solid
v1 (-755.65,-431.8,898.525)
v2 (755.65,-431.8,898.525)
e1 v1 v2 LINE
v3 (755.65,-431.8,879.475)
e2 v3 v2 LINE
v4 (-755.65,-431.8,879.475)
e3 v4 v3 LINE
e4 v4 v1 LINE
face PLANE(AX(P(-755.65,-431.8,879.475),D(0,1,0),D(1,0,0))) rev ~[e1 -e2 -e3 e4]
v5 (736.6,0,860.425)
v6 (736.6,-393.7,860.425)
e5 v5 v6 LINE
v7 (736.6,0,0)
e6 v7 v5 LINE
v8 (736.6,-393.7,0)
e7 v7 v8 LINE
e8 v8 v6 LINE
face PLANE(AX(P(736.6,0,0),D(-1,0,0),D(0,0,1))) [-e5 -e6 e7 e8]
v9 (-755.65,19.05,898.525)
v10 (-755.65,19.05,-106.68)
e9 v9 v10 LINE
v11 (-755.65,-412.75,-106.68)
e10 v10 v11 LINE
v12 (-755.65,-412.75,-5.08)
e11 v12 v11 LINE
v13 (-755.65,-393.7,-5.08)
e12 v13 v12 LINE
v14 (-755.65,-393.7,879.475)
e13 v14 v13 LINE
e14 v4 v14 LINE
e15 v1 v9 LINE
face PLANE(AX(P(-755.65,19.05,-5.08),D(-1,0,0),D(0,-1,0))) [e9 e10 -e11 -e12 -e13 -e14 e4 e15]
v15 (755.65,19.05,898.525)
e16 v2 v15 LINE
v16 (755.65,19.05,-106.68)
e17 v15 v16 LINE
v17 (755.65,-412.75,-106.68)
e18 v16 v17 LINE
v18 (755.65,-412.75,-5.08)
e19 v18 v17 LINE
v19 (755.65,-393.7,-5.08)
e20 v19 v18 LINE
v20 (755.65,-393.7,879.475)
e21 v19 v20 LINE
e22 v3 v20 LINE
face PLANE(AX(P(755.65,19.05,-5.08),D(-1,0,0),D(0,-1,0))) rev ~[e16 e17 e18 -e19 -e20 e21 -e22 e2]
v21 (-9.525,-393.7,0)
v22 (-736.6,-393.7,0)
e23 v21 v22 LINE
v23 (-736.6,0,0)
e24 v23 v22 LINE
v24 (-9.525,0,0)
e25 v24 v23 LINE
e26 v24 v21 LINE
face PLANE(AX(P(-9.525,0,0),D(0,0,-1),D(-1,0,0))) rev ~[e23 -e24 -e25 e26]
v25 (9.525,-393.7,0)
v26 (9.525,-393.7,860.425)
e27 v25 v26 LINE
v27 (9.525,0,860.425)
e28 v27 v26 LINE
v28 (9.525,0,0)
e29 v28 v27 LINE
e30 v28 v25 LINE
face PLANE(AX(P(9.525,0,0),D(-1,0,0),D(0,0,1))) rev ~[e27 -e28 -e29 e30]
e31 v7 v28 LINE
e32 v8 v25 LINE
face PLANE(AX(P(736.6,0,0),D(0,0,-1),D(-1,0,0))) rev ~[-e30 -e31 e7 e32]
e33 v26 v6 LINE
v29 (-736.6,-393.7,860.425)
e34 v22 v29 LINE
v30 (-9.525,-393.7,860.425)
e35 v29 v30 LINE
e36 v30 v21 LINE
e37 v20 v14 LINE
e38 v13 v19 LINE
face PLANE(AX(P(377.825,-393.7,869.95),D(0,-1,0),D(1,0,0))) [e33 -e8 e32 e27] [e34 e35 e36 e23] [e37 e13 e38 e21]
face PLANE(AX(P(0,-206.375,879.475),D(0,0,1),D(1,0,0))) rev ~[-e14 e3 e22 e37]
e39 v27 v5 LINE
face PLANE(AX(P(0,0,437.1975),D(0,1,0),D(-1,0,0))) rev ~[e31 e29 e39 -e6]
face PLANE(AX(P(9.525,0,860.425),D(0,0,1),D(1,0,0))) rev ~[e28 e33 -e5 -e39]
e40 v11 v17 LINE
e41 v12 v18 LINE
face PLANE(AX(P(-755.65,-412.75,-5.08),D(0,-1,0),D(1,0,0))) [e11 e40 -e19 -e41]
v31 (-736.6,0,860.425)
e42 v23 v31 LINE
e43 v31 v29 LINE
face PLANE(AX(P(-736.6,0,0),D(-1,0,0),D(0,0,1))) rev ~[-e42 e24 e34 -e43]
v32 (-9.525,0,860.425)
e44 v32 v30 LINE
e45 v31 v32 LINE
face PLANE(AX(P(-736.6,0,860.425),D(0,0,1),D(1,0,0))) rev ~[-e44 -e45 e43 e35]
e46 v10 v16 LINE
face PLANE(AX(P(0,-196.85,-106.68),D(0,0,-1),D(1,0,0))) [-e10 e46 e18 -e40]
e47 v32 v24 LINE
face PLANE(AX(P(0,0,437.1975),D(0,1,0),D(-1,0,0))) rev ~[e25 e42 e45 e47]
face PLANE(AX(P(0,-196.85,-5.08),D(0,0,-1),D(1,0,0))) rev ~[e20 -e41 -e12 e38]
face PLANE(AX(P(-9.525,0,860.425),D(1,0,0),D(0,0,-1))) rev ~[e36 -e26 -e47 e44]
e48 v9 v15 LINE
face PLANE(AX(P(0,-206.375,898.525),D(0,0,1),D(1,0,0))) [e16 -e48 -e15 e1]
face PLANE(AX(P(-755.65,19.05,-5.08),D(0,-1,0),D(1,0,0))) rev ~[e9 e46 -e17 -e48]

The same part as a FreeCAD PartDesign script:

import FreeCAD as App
import Part
import Sketcher
Q = App.Units.Quantity

doc = App.newDocument("Part")
body = doc.addObject("PartDesign::Body", "Body")

# Sketch on XZ plane
sketch1 = body.newObject("Sketcher::SketchObject", "Sketch")
sketch1.AttachmentSupport = (doc.getObject("XZ_Plane"), [""])
sketch1.MapMode = "FlatFace"
sketch1.addGeometry(Part.LineSegment(App.Vector(755.65, 879.475, 0), App.Vector(-755.65, 879.475, 0)), False)
sketch1.addGeometry(Part.LineSegment(App.Vector(-755.65, 879.475, 0), App.Vector(-755.65, -5.08, 0)), False)
sketch1.addGeometry(Part.LineSegment(App.Vector(-755.65, -5.08, 0), App.Vector(755.65, -5.08, 0)), False)
sketch1.addGeometry(Part.LineSegment(App.Vector(755.65, -5.08, 0), App.Vector(755.65, 879.475, 0)), False)
sketch1.addGeometry(Part.LineSegment(App.Vector(-736.6, 860.425, 0), App.Vector(-9.525, 860.425, 0)), False)
sketch1.addGeometry(Part.LineSegment(App.Vector(-9.525, 860.425, 0), App.Vector(-9.525, 0, 0)), False)
sketch1.addGeometry(Part.LineSegment(App.Vector(-9.525, 0, 0), App.Vector(-736.6, 0, 0)), False)
sketch1.addGeometry(Part.LineSegment(App.Vector(-736.6, 0, 0), App.Vector(-736.6, 860.425, 0)), False)
sketch1.addGeometry(Part.LineSegment(App.Vector(9.525, 860.425, 0), App.Vector(736.6, 860.425, 0)), False)
sketch1.addGeometry(Part.LineSegment(App.Vector(736.6, 860.425, 0), App.Vector(736.6, 0, 0)), False)
sketch1.addGeometry(Part.LineSegment(App.Vector(736.6, 0, 0), App.Vector(9.525, 0, 0)), False)
sketch1.addGeometry(Part.LineSegment(App.Vector(9.525, 0, 0), App.Vector(9.525, 860.425, 0)), False)
sketch1.addConstraint(Sketcher.Constraint("Coincident", 0, 2, 1, 1))
sketch1.addConstraint(Sketcher.Constraint("Coincident", 1, 2, 2, 1))
sketch1.addConstraint(Sketcher.Constraint("Coincident", 2, 2, 3, 1))
sketch1.addConstraint(Sketcher.Constraint("Coincident", 3, 2, 0, 1))
sketch1.addConstraint(Sketcher.Constraint("Coincident", 4, 2, 5, 1))
sketch1.addConstraint(Sketcher.Constraint("Coincident", 5, 2, 6, 1))
sketch1.addConstraint(Sketcher.Constraint("Coincident", 6, 2, 7, 1))
sketch1.addConstraint(Sketcher.Constraint("Coincident", 7, 2, 4, 1))
sketch1.addConstraint(Sketcher.Constraint("Coincident", 8, 2, 9, 1))
sketch1.addConstraint(Sketcher.Constraint("Coincident", 9, 2, 10, 1))
sketch1.addConstraint(Sketcher.Constraint("Coincident", 10, 2, 11, 1))
sketch1.addConstraint(Sketcher.Constraint("Coincident", 11, 2, 8, 1))
sketch1.addConstraint(Sketcher.Constraint("Horizontal", 0))
sketch1.addConstraint(Sketcher.Constraint("Vertical", 1))
sketch1.addConstraint(Sketcher.Constraint("Horizontal", 2))
sketch1.addConstraint(Sketcher.Constraint("Vertical", 3))
sketch1.addConstraint(Sketcher.Constraint("Horizontal", 4))
sketch1.addConstraint(Sketcher.Constraint("Vertical", 5))
sketch1.addConstraint(Sketcher.Constraint("Horizontal", 6))
sketch1.addConstraint(Sketcher.Constraint("Vertical", 7))
sketch1.addConstraint(Sketcher.Constraint("Horizontal", 8))
sketch1.addConstraint(Sketcher.Constraint("Vertical", 9))
sketch1.addConstraint(Sketcher.Constraint("Horizontal", 10))
sketch1.addConstraint(Sketcher.Constraint("Vertical", 11))
sketch1.addConstraint(Sketcher.Constraint("Symmetric", 6, 2, 9, 2, -1, 1))
sketch1.addConstraint(Sketcher.Constraint("Symmetric", 5, 2, 10, 2, -2))
sketch1.addConstraint(Sketcher.Constraint("Horizontal", 7, 2, 8, 2))
sketch1.addConstraint(Sketcher.Constraint("DistanceX", 0, 2, 0, 1, Q("59.5 in")))
sketch1.addConstraint(Sketcher.Constraint("DistanceX", 6, 2, -1, 1, Q("29 in")))
sketch1.addConstraint(Sketcher.Constraint("DistanceY", 1, 2, -1, 1, Q("0.2 in")))
sketch1.addConstraint(Sketcher.Constraint("DistanceX", 4, 1, 4, 2, Q("28.625 in")))
sketch1.addConstraint(Sketcher.Constraint("DistanceY", 1, 2, 1, 1, Q("34.825 in")))
sketch1.addConstraint(Sketcher.Constraint("DistanceY", 5, 2, 5, 1, Q("33.875 in")))
sketch1.addConstraint(Sketcher.Constraint("DistanceX", 0, 2, -1, 1, Q("29.75 in")))
pad1 = body.newObject("PartDesign::Pad", "Pad")
pad1.Profile = sketch1
pad1.Length = Q("15.5 in")

# Sketch on XZ plane
sketch2 = body.newObject("Sketcher::SketchObject", "Sketch001")
sketch2.AttachmentSupport = (doc.getObject("XZ_Plane"), [""])
sketch2.MapMode = "FlatFace"
sketch2.addGeometry(Part.LineSegment(App.Vector(755.65, 879.475, 0), App.Vector(755.65, -5.08, 0)), False)
sketch2.addGeometry(Part.LineSegment(App.Vector(755.65, -5.08, 0), App.Vector(-755.65, -5.08, 0)), False)
sketch2.addGeometry(Part.LineSegment(App.Vector(-755.65, -5.08, 0), App.Vector(-755.65, 879.475, 0)), False)
sketch2.addGeometry(Part.LineSegment(App.Vector(-755.65, 879.475, 0), App.Vector(755.65, 879.475, 0)), False)
sketch2.addConstraint(Sketcher.Constraint("Coincident", 0, 2, 1, 1))
sketch2.addConstraint(Sketcher.Constraint("Coincident", 1, 2, 2, 1))
sketch2.addConstraint(Sketcher.Constraint("Coincident", 2, 2, 3, 1))
sketch2.addConstraint(Sketcher.Constraint("Coincident", 3, 2, 0, 1))
sketch2.addConstraint(Sketcher.Constraint("Vertical", 0))
sketch2.addConstraint(Sketcher.Constraint("Horizontal", 1))
sketch2.addConstraint(Sketcher.Constraint("Vertical", 2))
sketch2.addConstraint(Sketcher.Constraint("Horizontal", 3))
sketch2.addConstraint(Sketcher.Constraint("DistanceX", 1, 2, 1, 1, Q("59.5 in")))
sketch2.addConstraint(Sketcher.Constraint("DistanceY", 0, 2, -1, 1, Q("0.2 in")))
sketch2.addConstraint(Sketcher.Constraint("DistanceY", 0, 2, 0, 1, Q("34.825 in")))
sketch2.addConstraint(Sketcher.Constraint("DistanceX", -1, 1, 0, 2, Q("29.75 in")))
pad2 = body.newObject("PartDesign::Pad", "Pad001")
pad2.Profile = sketch2
pad2.Length = Q("0.75 in")
pad2.Reversed = True

# Sketch on XY plane
sketch3 = body.newObject("Sketcher::SketchObject", "Sketch002")
sketch3.AttachmentSupport = (doc.getObject("XY_Plane"), [""])
sketch3.MapMode = "FlatFace"
sketch3.AttachmentOffset = App.Placement(App.Vector(0, 0, 34.625 * 25.4), App.Rotation())
sketch3.addGeometry(Part.LineSegment(App.Vector(-755.65, 19.05, 0), App.Vector(-755.65, -431.8, 0)), False)
sketch3.addGeometry(Part.LineSegment(App.Vector(-755.65, -431.8, 0), App.Vector(755.65, -431.8, 0)), False)
sketch3.addGeometry(Part.LineSegment(App.Vector(755.65, -431.8, 0), App.Vector(755.65, 19.05, 0)), False)
sketch3.addGeometry(Part.LineSegment(App.Vector(755.65, 19.05, 0), App.Vector(-755.65, 19.05, 0)), False)
sketch3.addConstraint(Sketcher.Constraint("Coincident", 0, 2, 1, 1))
sketch3.addConstraint(Sketcher.Constraint("Coincident", 1, 2, 2, 1))
sketch3.addConstraint(Sketcher.Constraint("Coincident", 2, 2, 3, 1))
sketch3.addConstraint(Sketcher.Constraint("Coincident", 3, 2, 0, 1))
sketch3.addConstraint(Sketcher.Constraint("Vertical", 0))
sketch3.addConstraint(Sketcher.Constraint("Horizontal", 1))
sketch3.addConstraint(Sketcher.Constraint("Vertical", 2))
sketch3.addConstraint(Sketcher.Constraint("Horizontal", 3))
sketch3.addConstraint(Sketcher.Constraint("DistanceX", 1, 1, 1, 2, Q("59.5 in")))
sketch3.addConstraint(Sketcher.Constraint("DistanceY", 0, 2, -1, 1, Q("17 in")))
sketch3.addConstraint(Sketcher.Constraint("DistanceY", 0, 2, 0, 1, Q("17.75 in")))
sketch3.addConstraint(Sketcher.Constraint("DistanceX", 0, 2, -1, 1, Q("29.75 in")))
pad3 = body.newObject("PartDesign::Pad", "Pad002")
pad3.Profile = sketch3
pad3.Length = Q("0.75 in")

# Sketch on XY plane
sketch4 = body.newObject("Sketcher::SketchObject", "Sketch003")
sketch4.AttachmentSupport = (doc.getObject("XY_Plane"), [""])
sketch4.MapMode = "FlatFace"
sketch4.AttachmentOffset = App.Placement(App.Vector(0, 0, -0.2 * 25.4), App.Rotation())
sketch4.addGeometry(Part.LineSegment(App.Vector(-755.65, -412.75, 0), App.Vector(-755.65, 19.05, 0)), False)
sketch4.addGeometry(Part.LineSegment(App.Vector(-755.65, 19.05, 0), App.Vector(755.65, 19.05, 0)), False)
sketch4.addGeometry(Part.LineSegment(App.Vector(755.65, 19.05, 0), App.Vector(755.65, -412.75, 0)), False)
sketch4.addGeometry(Part.LineSegment(App.Vector(755.65, -412.75, 0), App.Vector(-755.65, -412.75, 0)), False)
sketch4.addConstraint(Sketcher.Constraint("Coincident", 0, 2, 1, 1))
sketch4.addConstraint(Sketcher.Constraint("Coincident", 1, 2, 2, 1))
sketch4.addConstraint(Sketcher.Constraint("Coincident", 2, 2, 3, 1))
sketch4.addConstraint(Sketcher.Constraint("Coincident", 3, 2, 0, 1))
sketch4.addConstraint(Sketcher.Constraint("Vertical", 0))
sketch4.addConstraint(Sketcher.Constraint("Horizontal", 1))
sketch4.addConstraint(Sketcher.Constraint("Vertical", 2))
sketch4.addConstraint(Sketcher.Constraint("Horizontal", 3))
sketch4.addConstraint(Sketcher.Constraint("DistanceY", 0, 1, 0, 2, Q("17 in")))
sketch4.addConstraint(Sketcher.Constraint("DistanceX", 1, 1, 1, 2, Q("59.5 in")))
sketch4.addConstraint(Sketcher.Constraint("DistanceX", 0, 2, -1, 1, Q("29.75 in")))
sketch4.addConstraint(Sketcher.Constraint("DistanceY", -1, 1, 0, 2, Q("0.75 in")))
pad4 = body.newObject("PartDesign::Pad", "Pad003")
pad4.Profile = sketch4
pad4.Length = Q("4 in")
pad4.Reversed = True

doc.recompute()
